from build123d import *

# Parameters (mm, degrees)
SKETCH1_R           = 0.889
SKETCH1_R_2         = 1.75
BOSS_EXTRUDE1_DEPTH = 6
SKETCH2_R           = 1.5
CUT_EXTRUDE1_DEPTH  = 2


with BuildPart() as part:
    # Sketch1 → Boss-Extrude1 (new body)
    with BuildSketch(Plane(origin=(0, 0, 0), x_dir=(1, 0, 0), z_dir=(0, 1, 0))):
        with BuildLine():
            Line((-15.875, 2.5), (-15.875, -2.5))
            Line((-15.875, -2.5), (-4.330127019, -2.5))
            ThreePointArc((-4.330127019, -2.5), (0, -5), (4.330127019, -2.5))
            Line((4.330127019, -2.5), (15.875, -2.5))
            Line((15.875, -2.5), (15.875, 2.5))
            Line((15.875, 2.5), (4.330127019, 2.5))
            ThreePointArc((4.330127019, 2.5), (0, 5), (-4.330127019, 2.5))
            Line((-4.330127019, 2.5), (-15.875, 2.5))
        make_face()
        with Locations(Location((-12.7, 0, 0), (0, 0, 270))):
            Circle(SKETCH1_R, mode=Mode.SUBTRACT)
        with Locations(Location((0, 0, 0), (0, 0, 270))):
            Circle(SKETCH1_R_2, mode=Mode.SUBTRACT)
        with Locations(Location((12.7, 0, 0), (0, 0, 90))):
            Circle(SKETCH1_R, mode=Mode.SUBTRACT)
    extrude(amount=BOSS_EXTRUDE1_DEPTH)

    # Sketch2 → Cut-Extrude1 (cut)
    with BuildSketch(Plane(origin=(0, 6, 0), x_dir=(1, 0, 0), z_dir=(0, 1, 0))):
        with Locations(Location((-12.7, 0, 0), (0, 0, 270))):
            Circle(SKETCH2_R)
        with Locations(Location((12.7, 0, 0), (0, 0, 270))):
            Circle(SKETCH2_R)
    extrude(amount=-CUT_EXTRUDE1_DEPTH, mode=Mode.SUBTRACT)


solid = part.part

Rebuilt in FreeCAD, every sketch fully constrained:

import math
import FreeCAD as App
import Part
import Sketcher
from FreeCAD import Vector

doc = App.newDocument("Part")
params = doc.addObject("Spreadsheet::Sheet", "Params")
for row, (alias, value) in enumerate([
    ("sketch1_radius", "5 mm"),
    ("sketch1_diameter", "3.5 mm"),
    ("sketch1_height", "5 mm"),
    ("pad1_length", "6 mm"),
    ("sketch2_diameter", "3 mm"),
    ("pocket1_length", "2 mm"),
], start=1):
    params.set(f"A{row}", alias)
    params.set(f"B{row}", "=" + value)
    params.setAlias(f"B{row}", alias)

body = doc.addObject("PartDesign::Body", "Body")

# Sketch on XZ plane
sketch1 = body.newObject("Sketcher::SketchObject", "Sketch")
sketch1.AttachmentSupport = (doc.getObject("XZ_Plane"), [""])
sketch1.MapMode = "FlatFace"
sketch1.addGeometry(Part.LineSegment(Vector(-15.875, -2.5, 0), Vector(-15.875, 2.5, 0)), False)
sketch1.addGeometry(Part.LineSegment(Vector(-15.875, 2.5, 0), Vector(-4.330127, 2.5, 0)), False)
sketch1.addGeometry(Part.ArcOfCircle(Part.Circle(Vector(0, 0, 0), Vector(0, 0, 1), 5), math.radians(30), math.radians(150)), False)
sketch1.addGeometry(Part.LineSegment(Vector(4.330127, 2.5, 0), Vector(15.875, 2.5, 0)), False)
sketch1.addGeometry(Part.LineSegment(Vector(15.875, 2.5, 0), Vector(15.875, -2.5, 0)), False)
sketch1.addGeometry(Part.LineSegment(Vector(15.875, -2.5, 0), Vector(4.330127, -2.5, 0)), False)
sketch1.addGeometry(Part.ArcOfCircle(Part.Circle(Vector(0, 0, 0), Vector(0, 0, 1), 5), math.radians(-150), math.radians(-30)), False)
sketch1.addGeometry(Part.LineSegment(Vector(-4.330127, -2.5, 0), Vector(-15.875, -2.5, 0)), False)
sketch1.addGeometry(Part.Circle(Vector(-12.7, 0, 0), Vector(0, 0, 1), 0.889), False)
sketch1.addGeometry(Part.Circle(Vector(0, 0, 0), Vector(0, 0, 1), 1.75), False)
sketch1.addGeometry(Part.Circle(Vector(12.7, 0, 0), Vector(0, 0, 1), 0.889), False)
sketch1.addConstraint(Sketcher.Constraint("Coincident", 0, 2, 1, 1))
sketch1.addConstraint(Sketcher.Constraint("Coincident", 1, 2, 2, 2))
sketch1.addConstraint(Sketcher.Constraint("Coincident", 2, 1, 3, 1))
sketch1.addConstraint(Sketcher.Constraint("Coincident", 3, 2, 4, 1))
sketch1.addConstraint(Sketcher.Constraint("Coincident", 4, 2, 5, 1))
sketch1.addConstraint(Sketcher.Constraint("Coincident", 5, 2, 6, 2))
sketch1.addConstraint(Sketcher.Constraint("Coincident", 6, 1, 7, 1))
sketch1.addConstraint(Sketcher.Constraint("Coincident", 7, 2, 0, 1))
sketch1.addConstraint(Sketcher.Constraint("Vertical", 0))
sketch1.addConstraint(Sketcher.Constraint("Horizontal", 1))
sketch1.addConstraint(Sketcher.Constraint("Horizontal", 3))
sketch1.addConstraint(Sketcher.Constraint("Vertical", 4))
sketch1.addConstraint(Sketcher.Constraint("Horizontal", 5))
sketch1.addConstraint(Sketcher.Constraint("Horizontal", 7))
sketch1.addConstraint(Sketcher.Constraint("Coincident", 2, 3, -1, 1))
sketch1.addConstraint(Sketcher.Constraint("Coincident", 6, 3, -1, 1))
sketch1.addConstraint(Sketcher.Constraint("Coincident", 9, 3, -1, 1))
sketch1.addConstraint(Sketcher.Constraint("Equal", 2, 6))
sketch1.addConstraint(Sketcher.Constraint("Equal", 8, 10))
sketch1.addConstraint(Sketcher.Constraint("Symmetric", 8, 3, 10, 3, -1, 1))
sketch1.addConstraint(Sketcher.Constraint("Symmetric", 0, 2, 4, 2, -1, 1))
sketch1.addConstraint(Sketcher.Constraint("PointOnObject", 8, 3, -1))
sketch1.addConstraint(Sketcher.Constraint("Horizontal", 1, 2, 2, 1))
sketch1.addConstraint(Sketcher.Constraint("Horizontal", 5, 2, 6, 1))
sketch1.addConstraint(Sketcher.Constraint("Radius", 2, 5.0))
sketch1.addConstraint(Sketcher.Constraint("Diameter", 9, 3.5))
sketch1.addConstraint(Sketcher.Constraint("DistanceY", 0, 1, 0, 2, 5.0))
sketch1.addConstraint(Sketcher.Constraint("Diameter", 8, 1.778))
sketch1.addConstraint(Sketcher.Constraint("DistanceX", 8, 3, -1, 1, 12.7))
sketch1.addConstraint(Sketcher.Constraint("DistanceX", 0, 2, -1, 1, 15.875))
sketch1.setExpression("Constraints[24]", "Params.sketch1_radius")
sketch1.setExpression("Constraints[25]", "Params.sketch1_diameter")
sketch1.setExpression("Constraints[26]", "Params.sketch1_height")
pad1 = body.newObject("PartDesign::Pad", "Pad")
pad1.Profile = sketch1
pad1.setExpression("Length", "Params.pad1_length")
pad1.Reversed = True

# Sketch on XZ plane
sketch2 = body.newObject("Sketcher::SketchObject", "Sketch001")
sketch2.AttachmentSupport = (doc.getObject("XZ_Plane"), [""])
sketch2.MapMode = "FlatFace"
sketch2.AttachmentOffset = App.Placement(Vector(0, 0, -6), App.Rotation())
sketch2.addGeometry(Part.Circle(Vector(-12.7, 0, 0), Vector(0, 0, 1), 1.5), False)
sketch2.addGeometry(Part.Circle(Vector(12.7, 0, 0), Vector(0, 0, 1), 1.5), False)
sketch2.addConstraint(Sketcher.Constraint("Equal", 0, 1))
sketch2.addConstraint(Sketcher.Constraint("Symmetric", 0, 3, 1, 3, -1, 1))
sketch2.addConstraint(Sketcher.Constraint("PointOnObject", 0, 3, -1))
sketch2.addConstraint(Sketcher.Constraint("Diameter", 0, 3.0))
sketch2.addConstraint(Sketcher.Constraint("DistanceX", 0, 3, -1, 1, 12.7))
sketch2.setExpression("Constraints[3]", "Params.sketch2_diameter")
pocket1 = body.newObject("PartDesign::Pocket", "Pocket")
pocket1.Profile = sketch2
pocket1.setExpression("Length", "Params.pocket1_length")
pocket1.Reversed = True

doc.recompute()
